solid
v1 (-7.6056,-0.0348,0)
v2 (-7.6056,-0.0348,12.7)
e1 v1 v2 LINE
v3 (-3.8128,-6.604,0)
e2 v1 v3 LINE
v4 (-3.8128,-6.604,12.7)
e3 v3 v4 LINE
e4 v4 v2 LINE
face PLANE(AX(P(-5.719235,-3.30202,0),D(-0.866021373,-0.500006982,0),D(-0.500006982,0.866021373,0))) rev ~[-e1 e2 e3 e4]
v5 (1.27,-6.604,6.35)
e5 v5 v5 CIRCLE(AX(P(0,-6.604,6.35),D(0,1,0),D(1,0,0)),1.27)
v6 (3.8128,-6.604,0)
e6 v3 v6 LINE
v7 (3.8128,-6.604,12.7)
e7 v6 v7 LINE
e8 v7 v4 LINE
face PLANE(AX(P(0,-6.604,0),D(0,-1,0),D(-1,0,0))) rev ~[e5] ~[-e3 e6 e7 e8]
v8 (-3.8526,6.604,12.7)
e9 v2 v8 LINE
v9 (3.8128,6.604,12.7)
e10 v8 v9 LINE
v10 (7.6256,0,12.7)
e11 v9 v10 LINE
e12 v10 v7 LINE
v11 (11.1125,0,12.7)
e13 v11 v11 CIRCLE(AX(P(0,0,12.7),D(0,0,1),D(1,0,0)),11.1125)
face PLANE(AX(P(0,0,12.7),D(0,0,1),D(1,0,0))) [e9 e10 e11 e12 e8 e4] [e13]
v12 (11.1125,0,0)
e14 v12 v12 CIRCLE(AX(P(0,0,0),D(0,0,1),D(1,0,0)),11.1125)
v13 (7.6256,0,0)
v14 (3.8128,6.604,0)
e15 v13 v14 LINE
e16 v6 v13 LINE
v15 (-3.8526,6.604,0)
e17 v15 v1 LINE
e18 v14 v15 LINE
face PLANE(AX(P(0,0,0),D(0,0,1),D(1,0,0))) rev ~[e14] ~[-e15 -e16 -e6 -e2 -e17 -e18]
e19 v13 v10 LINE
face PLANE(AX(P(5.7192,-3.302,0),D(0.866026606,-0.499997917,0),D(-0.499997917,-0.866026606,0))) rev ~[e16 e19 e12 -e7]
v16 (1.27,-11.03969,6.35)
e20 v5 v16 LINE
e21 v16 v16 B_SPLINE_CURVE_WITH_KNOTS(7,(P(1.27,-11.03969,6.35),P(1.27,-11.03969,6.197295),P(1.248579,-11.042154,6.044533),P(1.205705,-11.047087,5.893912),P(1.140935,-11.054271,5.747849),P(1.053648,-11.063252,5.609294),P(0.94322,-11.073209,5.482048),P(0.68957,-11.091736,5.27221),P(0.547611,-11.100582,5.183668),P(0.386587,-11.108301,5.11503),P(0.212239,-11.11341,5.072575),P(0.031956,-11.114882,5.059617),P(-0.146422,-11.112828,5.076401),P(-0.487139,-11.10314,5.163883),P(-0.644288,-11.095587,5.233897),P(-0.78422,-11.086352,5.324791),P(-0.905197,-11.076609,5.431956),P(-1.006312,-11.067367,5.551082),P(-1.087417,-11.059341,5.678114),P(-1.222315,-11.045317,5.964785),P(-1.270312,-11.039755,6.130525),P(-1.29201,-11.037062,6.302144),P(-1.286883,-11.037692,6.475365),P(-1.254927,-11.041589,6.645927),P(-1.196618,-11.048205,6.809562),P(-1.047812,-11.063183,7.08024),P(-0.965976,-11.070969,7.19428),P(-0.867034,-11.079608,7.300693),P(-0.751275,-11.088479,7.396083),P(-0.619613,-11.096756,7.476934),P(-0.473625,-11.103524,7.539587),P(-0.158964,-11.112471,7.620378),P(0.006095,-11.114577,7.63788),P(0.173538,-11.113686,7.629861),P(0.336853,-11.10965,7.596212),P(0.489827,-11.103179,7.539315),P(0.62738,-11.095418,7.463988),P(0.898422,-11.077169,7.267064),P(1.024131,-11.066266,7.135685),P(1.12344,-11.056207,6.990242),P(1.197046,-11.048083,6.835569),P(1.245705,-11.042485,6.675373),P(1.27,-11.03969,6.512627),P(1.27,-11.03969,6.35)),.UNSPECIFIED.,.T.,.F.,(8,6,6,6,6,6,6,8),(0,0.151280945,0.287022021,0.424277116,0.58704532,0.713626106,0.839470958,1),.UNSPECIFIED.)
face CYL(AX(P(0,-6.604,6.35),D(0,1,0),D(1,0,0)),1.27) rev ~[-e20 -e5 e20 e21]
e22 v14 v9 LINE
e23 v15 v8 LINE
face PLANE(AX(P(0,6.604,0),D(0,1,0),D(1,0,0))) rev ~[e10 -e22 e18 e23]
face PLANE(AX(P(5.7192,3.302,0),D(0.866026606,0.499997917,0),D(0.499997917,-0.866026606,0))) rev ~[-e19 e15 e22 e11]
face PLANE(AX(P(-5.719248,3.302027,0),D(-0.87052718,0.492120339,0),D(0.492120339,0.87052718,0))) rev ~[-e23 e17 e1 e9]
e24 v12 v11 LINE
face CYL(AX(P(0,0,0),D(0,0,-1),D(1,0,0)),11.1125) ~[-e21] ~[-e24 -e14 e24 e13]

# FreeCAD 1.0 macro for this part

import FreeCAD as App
import Part
import Sketcher
Q = App.Units.Quantity

doc = App.newDocument("Part")
body = doc.addObject("PartDesign::Body", "Body")

# Sketch on XY plane
sketch1 = doc.addObject("Sketcher::SketchObject", "Sketch")
body.addObject(sketch1)
sketch1.AttachmentSupport = (doc.XY_Plane, [""])
sketch1.MapMode = "FlatFace"
sketch1.addGeometry([
    Part.Circle(App.Vector(0, 0, 0), App.Vector(0, 0, 1), 11),  # 0
    Part.LineSegment(App.Vector(4, 7, 0), App.Vector(8, 0, 0)),  # 1
    Part.LineSegment(App.Vector(8, 0, 0), App.Vector(4, -7, 0)),  # 2
    Part.LineSegment(App.Vector(4, -7, 0), App.Vector(-4, -7, 0)),  # 3
    Part.LineSegment(App.Vector(-4, -7, 0), App.Vector(-8, 0, 0)),  # 4
    Part.LineSegment(App.Vector(-8, 0, 0), App.Vector(-4, 7, 0)),  # 5
    Part.LineSegment(App.Vector(-4, 7, 0), App.Vector(4, 7, 0)),  # 6
], False)
sketch1.addConstraint([
    Sketcher.Constraint("Coincident", 1, 2, 2, 1),
    Sketcher.Constraint("Coincident", 2, 2, 3, 1),
    Sketcher.Constraint("Coincident", 3, 2, 4, 1),
    Sketcher.Constraint("Coincident", 4, 2, 5, 1),
    Sketcher.Constraint("Coincident", 5, 2, 6, 1),
    Sketcher.Constraint("Coincident", 6, 2, 1, 1),
    Sketcher.Constraint("Horizontal", 3),
    Sketcher.Constraint("Horizontal", 6),
    Sketcher.Constraint("Coincident", 0, 3, -1, 1),
    Sketcher.Constraint("Symmetric", 3, 2, 6, 2, -1, 1),
    Sketcher.Constraint("PointOnObject", 1, 2, -1),
    Sketcher.Constraint("Parallel", 1, 4),
    Sketcher.Constraint("Vertical", 2, 2, 6, 2),
    Sketcher.Constraint("Diameter", 0, Q("0.875 in")),
    Sketcher.Constraint("Angle", 1, Q("-60.0001 deg")),
    Sketcher.Constraint("DistanceY", 2, 2, -1, 1, Q("0.26 in")),
    Sketcher.Constraint("Angle", 5, Q("60.52 deg")),
    Sketcher.Constraint("DistanceX", 3, 2, 3, 1, 7.6256),
    Sketcher.Constraint("DistanceX", 6, 1, 6, 2, 7.6654),
])
pad1 = doc.addObject("PartDesign::Pad", "Pad")
body.addObject(pad1)
pad1.Profile = sketch1
pad1.Length = Q("0.5 in")

# Sketch on XZ plane
sketch2 = doc.addObject("Sketcher::SketchObject", "Sketch001")
body.addObject(sketch2)
sketch2.AttachmentSupport = (doc.XZ_Plane, [""])
sketch2.MapMode = "FlatFace"
sketch2.AttachmentOffset = App.Placement(App.Vector(0, 0, 0.26 * 25.4), App.Rotation())
sketch2.addGeometry(Part.Circle(App.Vector(0, 6.3, 0), App.Vector(0, 0, 1), 1.3), False)
sketch2.addConstraint([
    Sketcher.Constraint("PointOnObject", 0, 3, -2),
    Sketcher.Constraint("Diameter", 0, Q("0.1 in")),
    Sketcher.Constraint("DistanceY", -1, 1, 0, 3, Q("0.25 in")),
])
pocket1 = doc.addObject("PartDesign::Pocket", "Pocket")
body.addObject(pocket1)
pocket1.Profile = sketch2
pocket1.Type = "ThroughAll"
pocket1.Reversed = True

doc.recompute()
